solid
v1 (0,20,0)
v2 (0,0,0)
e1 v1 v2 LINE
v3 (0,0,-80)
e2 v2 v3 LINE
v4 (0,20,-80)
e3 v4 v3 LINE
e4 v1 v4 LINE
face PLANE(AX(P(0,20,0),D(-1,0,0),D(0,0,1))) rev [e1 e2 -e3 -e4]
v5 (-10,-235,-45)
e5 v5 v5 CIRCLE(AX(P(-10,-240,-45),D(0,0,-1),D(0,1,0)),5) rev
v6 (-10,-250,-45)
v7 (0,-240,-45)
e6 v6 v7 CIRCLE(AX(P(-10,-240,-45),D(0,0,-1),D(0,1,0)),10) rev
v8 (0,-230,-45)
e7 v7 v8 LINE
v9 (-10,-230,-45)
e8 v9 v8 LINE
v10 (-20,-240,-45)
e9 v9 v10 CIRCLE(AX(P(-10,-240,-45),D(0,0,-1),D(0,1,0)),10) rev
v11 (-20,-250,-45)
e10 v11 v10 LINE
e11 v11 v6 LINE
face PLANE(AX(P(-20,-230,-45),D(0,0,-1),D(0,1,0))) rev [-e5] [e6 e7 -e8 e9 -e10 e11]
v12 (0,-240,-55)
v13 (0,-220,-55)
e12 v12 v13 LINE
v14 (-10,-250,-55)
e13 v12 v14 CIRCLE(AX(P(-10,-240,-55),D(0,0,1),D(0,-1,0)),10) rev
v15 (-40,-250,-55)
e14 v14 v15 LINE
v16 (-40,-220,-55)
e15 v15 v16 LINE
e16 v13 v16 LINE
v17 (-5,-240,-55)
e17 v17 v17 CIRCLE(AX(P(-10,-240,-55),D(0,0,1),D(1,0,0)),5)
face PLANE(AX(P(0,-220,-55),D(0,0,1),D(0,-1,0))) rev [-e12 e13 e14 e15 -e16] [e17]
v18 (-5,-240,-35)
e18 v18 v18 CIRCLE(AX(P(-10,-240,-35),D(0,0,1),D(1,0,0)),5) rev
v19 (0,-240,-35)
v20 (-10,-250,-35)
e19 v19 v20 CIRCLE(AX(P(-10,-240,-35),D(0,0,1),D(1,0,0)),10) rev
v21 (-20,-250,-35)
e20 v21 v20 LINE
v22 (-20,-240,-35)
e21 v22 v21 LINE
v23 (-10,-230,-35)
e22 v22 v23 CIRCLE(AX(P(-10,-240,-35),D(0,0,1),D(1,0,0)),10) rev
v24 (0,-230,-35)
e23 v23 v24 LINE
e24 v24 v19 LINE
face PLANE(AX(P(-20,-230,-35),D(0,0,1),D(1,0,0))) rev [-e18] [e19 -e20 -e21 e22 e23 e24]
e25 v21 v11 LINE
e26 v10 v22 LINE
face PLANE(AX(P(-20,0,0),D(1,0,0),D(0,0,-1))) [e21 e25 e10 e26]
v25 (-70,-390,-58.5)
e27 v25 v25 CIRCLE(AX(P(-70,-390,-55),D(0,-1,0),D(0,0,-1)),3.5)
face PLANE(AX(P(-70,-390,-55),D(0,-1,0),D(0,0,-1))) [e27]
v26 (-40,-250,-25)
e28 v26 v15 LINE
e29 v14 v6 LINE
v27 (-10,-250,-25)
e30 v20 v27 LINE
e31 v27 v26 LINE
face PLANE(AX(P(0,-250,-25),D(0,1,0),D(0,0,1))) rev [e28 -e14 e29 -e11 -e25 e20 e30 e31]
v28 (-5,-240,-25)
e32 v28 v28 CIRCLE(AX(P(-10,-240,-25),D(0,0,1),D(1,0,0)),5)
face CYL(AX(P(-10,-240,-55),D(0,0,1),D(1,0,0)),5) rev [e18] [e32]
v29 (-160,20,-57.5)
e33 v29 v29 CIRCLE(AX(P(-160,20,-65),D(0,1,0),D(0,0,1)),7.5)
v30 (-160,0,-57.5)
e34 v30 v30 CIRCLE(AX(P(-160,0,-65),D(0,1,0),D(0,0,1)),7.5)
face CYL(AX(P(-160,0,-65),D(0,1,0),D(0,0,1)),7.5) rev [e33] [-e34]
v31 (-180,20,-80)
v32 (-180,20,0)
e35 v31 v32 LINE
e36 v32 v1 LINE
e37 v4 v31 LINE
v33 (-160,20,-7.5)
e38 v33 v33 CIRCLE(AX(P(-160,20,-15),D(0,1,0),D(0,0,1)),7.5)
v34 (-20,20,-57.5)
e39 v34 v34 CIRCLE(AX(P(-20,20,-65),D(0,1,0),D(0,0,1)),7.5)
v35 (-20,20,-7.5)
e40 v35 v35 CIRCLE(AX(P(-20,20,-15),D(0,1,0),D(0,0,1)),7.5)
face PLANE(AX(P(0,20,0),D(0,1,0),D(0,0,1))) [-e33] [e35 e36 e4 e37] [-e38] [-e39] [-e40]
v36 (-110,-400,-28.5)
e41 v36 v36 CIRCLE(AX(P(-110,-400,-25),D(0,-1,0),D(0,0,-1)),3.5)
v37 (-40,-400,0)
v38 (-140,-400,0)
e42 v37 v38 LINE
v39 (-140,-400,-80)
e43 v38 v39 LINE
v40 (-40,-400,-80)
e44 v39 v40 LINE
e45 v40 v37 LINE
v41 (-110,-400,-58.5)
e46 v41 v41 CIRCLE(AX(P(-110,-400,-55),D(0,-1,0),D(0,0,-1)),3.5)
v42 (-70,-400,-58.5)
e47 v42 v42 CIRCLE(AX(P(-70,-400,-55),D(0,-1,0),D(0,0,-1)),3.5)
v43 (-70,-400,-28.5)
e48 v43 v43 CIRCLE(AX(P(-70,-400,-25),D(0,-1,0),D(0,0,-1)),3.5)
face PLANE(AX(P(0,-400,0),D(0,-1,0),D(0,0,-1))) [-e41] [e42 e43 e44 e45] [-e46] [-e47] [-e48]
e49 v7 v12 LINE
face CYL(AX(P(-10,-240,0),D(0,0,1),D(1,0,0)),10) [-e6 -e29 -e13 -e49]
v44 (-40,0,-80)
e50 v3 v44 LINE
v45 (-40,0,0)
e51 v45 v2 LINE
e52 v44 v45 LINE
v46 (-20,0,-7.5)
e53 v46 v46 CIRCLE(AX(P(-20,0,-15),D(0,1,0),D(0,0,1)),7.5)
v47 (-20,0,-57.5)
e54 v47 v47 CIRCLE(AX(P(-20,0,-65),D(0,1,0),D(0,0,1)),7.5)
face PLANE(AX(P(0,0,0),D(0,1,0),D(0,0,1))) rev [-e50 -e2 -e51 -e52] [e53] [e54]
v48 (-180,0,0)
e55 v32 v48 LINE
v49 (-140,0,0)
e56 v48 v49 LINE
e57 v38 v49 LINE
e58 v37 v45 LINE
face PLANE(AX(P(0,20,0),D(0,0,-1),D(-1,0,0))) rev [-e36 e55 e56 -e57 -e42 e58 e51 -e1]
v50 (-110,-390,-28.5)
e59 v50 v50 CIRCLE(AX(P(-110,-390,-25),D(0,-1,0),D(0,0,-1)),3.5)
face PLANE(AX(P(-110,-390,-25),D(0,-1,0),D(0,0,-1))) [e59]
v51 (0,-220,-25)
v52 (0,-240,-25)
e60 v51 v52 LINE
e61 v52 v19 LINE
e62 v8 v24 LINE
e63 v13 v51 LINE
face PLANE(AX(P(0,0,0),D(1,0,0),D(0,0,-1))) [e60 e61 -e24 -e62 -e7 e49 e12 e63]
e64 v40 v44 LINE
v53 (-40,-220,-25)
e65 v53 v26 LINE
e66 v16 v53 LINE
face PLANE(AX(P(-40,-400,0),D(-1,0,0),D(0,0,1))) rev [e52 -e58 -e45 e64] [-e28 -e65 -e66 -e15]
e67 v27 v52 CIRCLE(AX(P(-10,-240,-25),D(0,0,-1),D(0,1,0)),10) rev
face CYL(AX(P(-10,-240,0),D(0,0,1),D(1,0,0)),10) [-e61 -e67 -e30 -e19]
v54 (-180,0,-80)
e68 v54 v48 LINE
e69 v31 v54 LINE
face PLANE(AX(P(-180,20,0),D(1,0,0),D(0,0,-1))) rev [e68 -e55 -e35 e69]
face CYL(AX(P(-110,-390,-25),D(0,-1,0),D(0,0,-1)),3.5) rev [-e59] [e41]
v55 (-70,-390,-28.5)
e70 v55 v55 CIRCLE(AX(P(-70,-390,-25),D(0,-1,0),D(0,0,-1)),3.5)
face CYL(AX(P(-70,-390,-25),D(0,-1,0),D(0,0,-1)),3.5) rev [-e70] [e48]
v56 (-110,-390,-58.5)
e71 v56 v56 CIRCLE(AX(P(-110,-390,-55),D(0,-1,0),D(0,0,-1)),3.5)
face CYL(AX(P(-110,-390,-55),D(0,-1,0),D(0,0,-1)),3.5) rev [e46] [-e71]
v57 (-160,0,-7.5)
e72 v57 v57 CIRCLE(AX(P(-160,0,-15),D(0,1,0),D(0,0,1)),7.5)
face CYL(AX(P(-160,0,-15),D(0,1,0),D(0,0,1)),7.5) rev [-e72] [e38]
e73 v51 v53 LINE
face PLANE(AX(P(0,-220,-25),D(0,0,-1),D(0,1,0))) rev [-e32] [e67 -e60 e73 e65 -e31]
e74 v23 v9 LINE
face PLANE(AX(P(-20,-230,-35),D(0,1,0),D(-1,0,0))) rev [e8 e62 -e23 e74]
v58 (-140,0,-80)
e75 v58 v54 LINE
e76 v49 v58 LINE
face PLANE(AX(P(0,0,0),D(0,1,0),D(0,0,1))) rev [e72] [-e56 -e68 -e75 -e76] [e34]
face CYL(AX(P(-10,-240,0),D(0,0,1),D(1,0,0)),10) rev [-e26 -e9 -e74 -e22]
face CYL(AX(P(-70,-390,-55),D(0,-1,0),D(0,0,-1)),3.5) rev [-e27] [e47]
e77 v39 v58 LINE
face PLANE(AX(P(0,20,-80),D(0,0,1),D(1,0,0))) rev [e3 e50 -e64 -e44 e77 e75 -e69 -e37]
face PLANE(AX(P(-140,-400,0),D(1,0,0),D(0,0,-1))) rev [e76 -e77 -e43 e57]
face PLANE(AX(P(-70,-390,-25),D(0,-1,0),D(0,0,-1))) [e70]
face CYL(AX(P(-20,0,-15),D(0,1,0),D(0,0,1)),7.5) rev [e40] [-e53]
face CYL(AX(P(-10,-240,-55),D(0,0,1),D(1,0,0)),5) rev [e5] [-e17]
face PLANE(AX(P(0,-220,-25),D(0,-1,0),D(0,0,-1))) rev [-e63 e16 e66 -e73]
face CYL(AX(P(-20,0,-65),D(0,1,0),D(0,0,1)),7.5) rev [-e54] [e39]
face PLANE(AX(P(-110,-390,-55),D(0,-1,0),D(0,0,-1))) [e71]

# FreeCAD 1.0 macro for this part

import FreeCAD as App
import Part
import Sketcher


def edges_at(feature, points):
    """Names of the edges that pass closest to the given points."""
    edges = feature.Shape.Edges
    near = lambda p: min(range(len(edges)), key=lambda i: edges[i].distToShape(Part.Vertex(*p))[0])
    return sorted({f"Edge{near(p) + 1}" for p in points})


def add_polygon(sketch, points):
    """Adds a closed chain of lines whose ends are joined by coincident constraints."""
    first, n = sketch.GeometryCount, len(points)
    for a, b in zip(points, points[1:] + points[:1]):
        sketch.addGeometry(Part.LineSegment(App.Vector(*a, 0), App.Vector(*b, 0)), False)
    for i in range(n):
        sketch.addConstraint(Sketcher.Constraint("Coincident", first + i, 2, first + (i + 1) % n, 1))

doc = App.newDocument("Part")
params = doc.addObject("Spreadsheet::Sheet", "Params")
for row, (alias, value) in enumerate([
    ("sketch1_width", "180 mm"),
    ("sketch1_height", "80 mm"),
    ("pad1_length", "20 mm"),
    ("sketch2_diameter", "15 mm"),
    ("sketch3_width", "100 mm"),
    ("sketch3_height", "80 mm"),
    ("pad2_length", "400 mm"),
    ("sketch4_diameter", "7 mm"),
    ("pocket2_length", "10 mm"),
    ("sketch5_width", "30 mm"),
    ("pad3_length", "40 mm"),
    ("sketch6_diameter", "10 mm"),
    ("pocket3_length", "30 mm"),
    ("sketch7_width", "20 mm"),
    ("sketch7_height", "10 mm"),
    ("pocket4_length", "20 mm"),
    ("fillet_radius", "10 mm"),
], start=1):
    params.set(f"A{row}", alias)
    params.set(f"B{row}", "=" + value)
    params.setAlias(f"B{row}", alias)

body = doc.addObject("PartDesign::Body", "Body")

# Sketch on XZ plane
sketch1 = doc.addObject("Sketcher::SketchObject", "Sketch")
body.addObject(sketch1)
sketch1.AttachmentSupport = (doc.XZ_Plane, [""])
sketch1.MapMode = "FlatFace"
add_polygon(sketch1, [(-180, -80), (-180, 0), (0, 0), (0, -80)])  # lines 0-3
sketch1.addConstraint(Sketcher.Constraint("Vertical", 0))
sketch1.addConstraint(Sketcher.Constraint("Horizontal", 1))
sketch1.addConstraint(Sketcher.Constraint("Vertical", 2))
sketch1.addConstraint(Sketcher.Constraint("Horizontal", 3))
sketch1.addConstraint(Sketcher.Constraint("Coincident", 1, 2, -1, 1))
sketch1.addConstraint(Sketcher.Constraint("DistanceX", 1, 1, 1, 2, 180.0))
sketch1.addConstraint(Sketcher.Constraint("DistanceY", 0, 1, 0, 2, 80.0))
sketch1.setExpression("Constraints[9]", "Params.sketch1_width")
sketch1.setExpression("Constraints[10]", "Params.sketch1_height")
pad1 = doc.addObject("PartDesign::Pad", "Pad")
body.addObject(pad1)
pad1.Profile = sketch1
pad1.setExpression("Length", "Params.pad1_length")
pad1.Reversed = True

# Sketch on XZ plane
sketch2 = doc.addObject("Sketcher::SketchObject", "Sketch001")
body.addObject(sketch2)
sketch2.AttachmentSupport = (doc.XZ_Plane, [""])
sketch2.MapMode = "FlatFace"
sketch2.AttachmentOffset = App.Placement(App.Vector(0, 0, -20), App.Rotation())
sketch2.addGeometry(Part.Circle(App.Vector(-160, -65, 0), App.Vector(0, 0, 1), 8), False)
sketch2.addGeometry(Part.Circle(App.Vector(-160, -15, 0), App.Vector(0, 0, 1), 8), False)
sketch2.addGeometry(Part.Circle(App.Vector(-20, -65, 0), App.Vector(0, 0, 1), 8), False)
sketch2.addGeometry(Part.Circle(App.Vector(-20, -15, 0), App.Vector(0, 0, 1), 8), False)
sketch2.addConstraint(Sketcher.Constraint("Equal", 0, 1))
sketch2.addConstraint(Sketcher.Constraint("Equal", 1, 2))
sketch2.addConstraint(Sketcher.Constraint("Equal", 2, 3))
sketch2.addConstraint(Sketcher.Constraint("Horizontal", 0, 3, 2, 3))
sketch2.addConstraint(Sketcher.Constraint("Horizontal", 1, 3, 3, 3))
sketch2.addConstraint(Sketcher.Constraint("Vertical", 0, 3, 1, 3))
sketch2.addConstraint(Sketcher.Constraint("Vertical", 2, 3, 3, 3))
sketch2.addConstraint(Sketcher.Constraint("Diameter", 0, 15.0))
sketch2.addConstraint(Sketcher.Constraint("DistanceX", 0, 3, -1, 1, 160.0))
sketch2.addConstraint(Sketcher.Constraint("DistanceY", 0, 3, -1, 1, 65.0))
sketch2.addConstraint(Sketcher.Constraint("DistanceY", 1, 3, -1, 1, 15.0))
sketch2.addConstraint(Sketcher.Constraint("DistanceX", 2, 3, -1, 1, 20.0))
sketch2.setExpression("Constraints[7]", "Params.sketch2_diameter")
pocket1 = doc.addObject("PartDesign::Pocket", "Pocket")
body.addObject(pocket1)
pocket1.Profile = sketch2
pocket1.Type = "ThroughAll"
pocket1.Reversed = True

# Sketch on XZ plane
sketch3 = doc.addObject("Sketcher::SketchObject", "Sketch002")
body.addObject(sketch3)
sketch3.AttachmentSupport = (doc.XZ_Plane, [""])
sketch3.MapMode = "FlatFace"
add_polygon(sketch3, [(-140, 0), (-140, -80), (-40, -80), (-40, 0)])  # lines 0-3
sketch3.addConstraint(Sketcher.Constraint("Vertical", 0))
sketch3.addConstraint(Sketcher.Constraint("Horizontal", 1))
sketch3.addConstraint(Sketcher.Constraint("Vertical", 2))
sketch3.addConstraint(Sketcher.Constraint("Horizontal", 3))
sketch3.addConstraint(Sketcher.Constraint("PointOnObject", 2, 2, -1))
sketch3.addConstraint(Sketcher.Constraint("DistanceX", 1, 1, 1, 2, 100.0))
sketch3.addConstraint(Sketcher.Constraint("DistanceY", 0, 2, 0, 1, 80.0))
sketch3.addConstraint(Sketcher.Constraint("DistanceX", 0, 2, -1, 1, 140.0))
sketch3.setExpression("Constraints[9]", "Params.sketch3_width")
sketch3.setExpression("Constraints[10]", "Params.sketch3_height")
pad2 = doc.addObject("PartDesign::Pad", "Pad001")
body.addObject(pad2)
pad2.Profile = sketch3
pad2.setExpression("Length", "Params.pad2_length")

# Sketch on XZ plane
sketch4 = doc.addObject("Sketcher::SketchObject", "Sketch003")
body.addObject(sketch4)
sketch4.AttachmentSupport = (doc.XZ_Plane, [""])
sketch4.MapMode = "FlatFace"
sketch4.AttachmentOffset = App.Placement(App.Vector(0, 0, 400), App.Rotation())
sketch4.addGeometry(Part.Circle(App.Vector(-110, -25, 0), App.Vector(0, 0, 1), 3.5), False)
sketch4.addGeometry(Part.Circle(App.Vector(-70, -25, 0), App.Vector(0, 0, 1), 3.5), False)
sketch4.addGeometry(Part.Circle(App.Vector(-110, -55, 0), App.Vector(0, 0, 1), 3.5), False)
sketch4.addGeometry(Part.Circle(App.Vector(-70, -55, 0), App.Vector(0, 0, 1), 3.5), False)
sketch4.addConstraint(Sketcher.Constraint("Equal", 0, 1))
sketch4.addConstraint(Sketcher.Constraint("Equal", 1, 2))
sketch4.addConstraint(Sketcher.Constraint("Equal", 2, 3))
sketch4.addConstraint(Sketcher.Constraint("Horizontal", 0, 3, 1, 3))
sketch4.addConstraint(Sketcher.Constraint("Horizontal", 2, 3, 3, 3))
sketch4.addConstraint(Sketcher.Constraint("Vertical", 0, 3, 2, 3))
sketch4.addConstraint(Sketcher.Constraint("Vertical", 1, 3, 3, 3))
sketch4.addConstraint(Sketcher.Constraint("Diameter", 0, 7.0))
sketch4.addConstraint(Sketcher.Constraint("DistanceX", 0, 3, -1, 1, 110.0))
sketch4.addConstraint(Sketcher.Constraint("DistanceY", 0, 3, -1, 1, 25.0))
sketch4.addConstraint(Sketcher.Constraint("DistanceX", 1, 3, -1, 1, 70.0))
sketch4.addConstraint(Sketcher.Constraint("DistanceY", 2, 3, -1, 1, 55.0))
sketch4.setExpression("Constraints[7]", "Params.sketch4_diameter")
pocket2 = doc.addObject("PartDesign::Pocket", "Pocket001")
body.addObject(pocket2)
pocket2.Profile = sketch4
pocket2.setExpression("Length", "Params.pocket2_length")

# Sketch on YZ plane
sketch5 = doc.addObject("Sketcher::SketchObject", "Sketch004")
body.addObject(sketch5)
sketch5.AttachmentSupport = (doc.YZ_Plane, [""])
sketch5.MapMode = "FlatFace"
sketch5.AttachmentOffset = App.Placement(App.Vector(0, 0, -40), App.Rotation())
add_polygon(sketch5, [(-220, -25), (-250, -25), (-250, -55), (-220, -55)])  # lines 0-3
sketch5.addConstraint(Sketcher.Constraint("Horizontal", 0))
sketch5.addConstraint(Sketcher.Constraint("Vertical", 1))
sketch5.addConstraint(Sketcher.Constraint("Horizontal", 2))
sketch5.addConstraint(Sketcher.Constraint("Vertical", 3))
sketch5.addConstraint(Sketcher.Constraint("Equal", 2, 1))
sketch5.addConstraint(Sketcher.Constraint("DistanceX", 0, 2, 0, 1, 30.0))
sketch5.addConstraint(Sketcher.Constraint("DistanceX", 0, 2, -1, 1, 250.0))
sketch5.addConstraint(Sketcher.Constraint("DistanceY", 0, 2, -1, 1, 25.0))
sketch5.setExpression("Constraints[9]", "Params.sketch5_width")
pad3 = doc.addObject("PartDesign::Pad", "Pad002")
body.addObject(pad3)
pad3.Profile = sketch5
pad3.setExpression("Length", "Params.pad3_length")

# Sketch on XY plane
sketch6 = doc.addObject("Sketcher::SketchObject", "Sketch005")
body.addObject(sketch6)
sketch6.AttachmentSupport = (doc.XY_Plane, [""])
sketch6.MapMode = "FlatFace"
sketch6.AttachmentOffset = App.Placement(App.Vector(0, 0, -25), App.Rotation())
sketch6.addGeometry(Part.Circle(App.Vector(-10, -240, 0), App.Vector(0, 0, 1), 5), False)
sketch6.addConstraint(Sketcher.Constraint("Diameter", 0, 10.0))
sketch6.addConstraint(Sketcher.Constraint("DistanceX", 0, 3, -1, 1, 10.0))
sketch6.addConstraint(Sketcher.Constraint("DistanceY", 0, 3, -1, 1, 240.0))
sketch6.setExpression("Constraints[0]", "Params.sketch6_diameter")
pocket3 = doc.addObject("PartDesign::Pocket", "Pocket002")
body.addObject(pocket3)
pocket3.Profile = sketch6
pocket3.setExpression("Length", "Params.pocket3_length")

# Sketch on YZ plane
sketch7 = doc.addObject("Sketcher::SketchObject", "Sketch006")
body.addObject(sketch7)
sketch7.AttachmentSupport = (doc.YZ_Plane, [""])
sketch7.MapMode = "FlatFace"
add_polygon(sketch7, [(-230, -35), (-250, -35), (-250, -45), (-230, -45)])  # lines 0-3
sketch7.addConstraint(Sketcher.Constraint("Horizontal", 0))
sketch7.addConstraint(Sketcher.Constraint("Vertical", 1))
sketch7.addConstraint(Sketcher.Constraint("Horizontal", 2))
sketch7.addConstraint(Sketcher.Constraint("Vertical", 3))
sketch7.addConstraint(Sketcher.Constraint("DistanceX", 0, 2, 0, 1, 20.0))
sketch7.addConstraint(Sketcher.Constraint("DistanceY", 1, 2, 1, 1, 10.0))
sketch7.addConstraint(Sketcher.Constraint("DistanceX", 0, 2, -1, 1, 250.0))
sketch7.addConstraint(Sketcher.Constraint("DistanceY", 0, 2, -1, 1, 35.0))
sketch7.setExpression("Constraints[8]", "Params.sketch7_width")
sketch7.setExpression("Constraints[9]", "Params.sketch7_height")
pocket4 = doc.addObject("PartDesign::Pocket", "Pocket003")
body.addObject(pocket4)
pocket4.Profile = sketch7
pocket4.setExpression("Length", "Params.pocket4_length")
doc.recompute()

fillet = doc.addObject("PartDesign::Fillet", "Fillet")
body.addObject(fillet)
fillet.Base = (pocket4, edges_at(pocket4, [(0, -250, -30), (0, -250, -50), (-20, -230, -40)]))
fillet.setExpression("Radius", "Params.fillet_radius")

doc.recompute()
